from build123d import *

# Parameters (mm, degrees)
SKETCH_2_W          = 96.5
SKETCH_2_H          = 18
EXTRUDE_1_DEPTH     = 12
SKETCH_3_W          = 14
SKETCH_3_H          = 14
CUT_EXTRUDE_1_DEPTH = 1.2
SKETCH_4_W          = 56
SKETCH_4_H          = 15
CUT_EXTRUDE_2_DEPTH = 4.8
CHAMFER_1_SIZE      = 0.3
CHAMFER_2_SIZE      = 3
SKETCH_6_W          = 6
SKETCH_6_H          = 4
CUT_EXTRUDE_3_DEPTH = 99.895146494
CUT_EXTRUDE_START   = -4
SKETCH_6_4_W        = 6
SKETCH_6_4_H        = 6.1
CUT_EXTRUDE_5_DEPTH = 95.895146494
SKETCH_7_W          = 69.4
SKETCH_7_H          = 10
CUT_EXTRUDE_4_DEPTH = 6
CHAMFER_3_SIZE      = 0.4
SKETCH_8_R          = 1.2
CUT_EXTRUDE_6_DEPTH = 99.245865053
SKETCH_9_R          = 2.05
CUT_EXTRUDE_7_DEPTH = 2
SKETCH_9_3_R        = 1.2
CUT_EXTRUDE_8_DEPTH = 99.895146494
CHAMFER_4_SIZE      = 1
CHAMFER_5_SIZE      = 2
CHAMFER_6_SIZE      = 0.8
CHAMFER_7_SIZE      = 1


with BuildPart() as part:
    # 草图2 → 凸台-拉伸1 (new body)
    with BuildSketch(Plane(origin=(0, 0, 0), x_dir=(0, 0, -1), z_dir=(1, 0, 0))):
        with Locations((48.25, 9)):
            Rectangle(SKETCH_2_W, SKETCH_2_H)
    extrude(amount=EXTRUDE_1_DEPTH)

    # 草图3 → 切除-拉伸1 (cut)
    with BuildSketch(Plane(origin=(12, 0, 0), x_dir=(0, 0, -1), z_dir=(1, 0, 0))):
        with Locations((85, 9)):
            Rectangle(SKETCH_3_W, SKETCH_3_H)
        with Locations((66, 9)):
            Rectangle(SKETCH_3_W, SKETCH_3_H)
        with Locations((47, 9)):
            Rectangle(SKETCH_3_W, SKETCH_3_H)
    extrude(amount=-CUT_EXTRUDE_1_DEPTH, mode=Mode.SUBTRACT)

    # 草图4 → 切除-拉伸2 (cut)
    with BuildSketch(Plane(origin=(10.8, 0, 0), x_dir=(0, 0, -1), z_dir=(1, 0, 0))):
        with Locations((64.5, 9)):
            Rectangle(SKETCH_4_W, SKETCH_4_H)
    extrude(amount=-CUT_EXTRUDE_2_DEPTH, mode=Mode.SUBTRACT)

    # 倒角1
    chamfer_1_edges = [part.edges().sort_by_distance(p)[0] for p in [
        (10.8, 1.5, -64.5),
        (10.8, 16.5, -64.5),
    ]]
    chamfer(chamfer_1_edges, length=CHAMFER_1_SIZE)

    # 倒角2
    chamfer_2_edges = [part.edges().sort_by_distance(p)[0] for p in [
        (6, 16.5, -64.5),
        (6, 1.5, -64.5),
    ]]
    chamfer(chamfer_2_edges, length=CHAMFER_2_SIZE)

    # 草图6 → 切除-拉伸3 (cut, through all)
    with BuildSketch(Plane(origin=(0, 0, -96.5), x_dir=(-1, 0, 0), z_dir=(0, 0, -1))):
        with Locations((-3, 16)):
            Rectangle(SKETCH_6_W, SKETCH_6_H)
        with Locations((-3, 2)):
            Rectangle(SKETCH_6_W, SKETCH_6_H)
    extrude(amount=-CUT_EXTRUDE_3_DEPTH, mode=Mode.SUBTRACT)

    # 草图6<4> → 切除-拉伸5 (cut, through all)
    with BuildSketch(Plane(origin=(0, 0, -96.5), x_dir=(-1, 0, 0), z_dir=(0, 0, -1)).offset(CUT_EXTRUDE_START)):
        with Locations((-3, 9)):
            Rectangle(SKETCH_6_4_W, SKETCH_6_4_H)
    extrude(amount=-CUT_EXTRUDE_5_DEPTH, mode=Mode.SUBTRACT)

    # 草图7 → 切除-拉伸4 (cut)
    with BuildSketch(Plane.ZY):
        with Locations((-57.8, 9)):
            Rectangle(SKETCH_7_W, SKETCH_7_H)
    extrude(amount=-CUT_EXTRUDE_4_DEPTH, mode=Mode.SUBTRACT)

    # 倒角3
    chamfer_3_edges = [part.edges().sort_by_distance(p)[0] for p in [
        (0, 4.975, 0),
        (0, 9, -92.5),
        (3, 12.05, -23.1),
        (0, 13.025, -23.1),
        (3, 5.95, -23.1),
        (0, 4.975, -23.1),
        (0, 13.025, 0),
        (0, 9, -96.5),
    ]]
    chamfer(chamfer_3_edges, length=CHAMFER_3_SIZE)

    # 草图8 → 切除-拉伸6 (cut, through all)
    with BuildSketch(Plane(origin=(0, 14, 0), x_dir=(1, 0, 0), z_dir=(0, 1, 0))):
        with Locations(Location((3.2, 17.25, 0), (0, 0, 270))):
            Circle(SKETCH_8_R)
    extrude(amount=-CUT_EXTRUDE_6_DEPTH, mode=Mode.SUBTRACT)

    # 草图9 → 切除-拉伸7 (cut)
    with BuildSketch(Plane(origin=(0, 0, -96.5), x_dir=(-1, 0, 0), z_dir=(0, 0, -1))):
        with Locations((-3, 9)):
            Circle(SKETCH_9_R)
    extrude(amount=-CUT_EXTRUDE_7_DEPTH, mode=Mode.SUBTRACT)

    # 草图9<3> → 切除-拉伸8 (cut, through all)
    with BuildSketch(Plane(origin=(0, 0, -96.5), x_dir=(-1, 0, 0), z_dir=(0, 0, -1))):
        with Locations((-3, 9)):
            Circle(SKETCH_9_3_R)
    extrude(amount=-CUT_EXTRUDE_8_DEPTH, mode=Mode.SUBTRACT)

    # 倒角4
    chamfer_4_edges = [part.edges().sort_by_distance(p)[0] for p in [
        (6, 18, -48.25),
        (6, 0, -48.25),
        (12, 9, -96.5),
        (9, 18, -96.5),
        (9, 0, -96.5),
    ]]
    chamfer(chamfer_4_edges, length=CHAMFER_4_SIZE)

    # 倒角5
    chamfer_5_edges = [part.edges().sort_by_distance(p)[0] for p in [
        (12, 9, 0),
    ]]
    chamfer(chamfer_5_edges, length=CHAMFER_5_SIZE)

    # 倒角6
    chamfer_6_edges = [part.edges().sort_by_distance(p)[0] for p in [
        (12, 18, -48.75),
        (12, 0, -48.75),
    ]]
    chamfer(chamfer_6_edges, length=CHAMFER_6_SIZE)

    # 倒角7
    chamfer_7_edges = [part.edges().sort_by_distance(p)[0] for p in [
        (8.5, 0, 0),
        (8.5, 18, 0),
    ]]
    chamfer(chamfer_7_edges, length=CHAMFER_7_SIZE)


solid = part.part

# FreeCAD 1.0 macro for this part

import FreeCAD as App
import Part
import Sketcher

V = App.Vector


def edges_at(feature, points):
    """Names of the edges that pass closest to the given points."""
    edges = feature.Shape.Edges
    near = lambda p: min(range(len(edges)), key=lambda i: edges[i].distToShape(Part.Vertex(*p))[0])
    return sorted({f"Edge{near(p) + 1}" for p in points})


def add_polygon(sketch, points):
    """Adds a closed chain of lines whose ends are joined by coincident constraints."""
    first, n = sketch.GeometryCount, len(points)
    for a, b in zip(points, points[1:] + points[:1]):
        sketch.addGeometry(Part.LineSegment(App.Vector(*a, 0), App.Vector(*b, 0)), False)
    for i in range(n):
        sketch.addConstraint(Sketcher.Constraint("Coincident", first + i, 2, first + (i + 1) % n, 1))

doc = App.newDocument("Part")
body = doc.addObject("PartDesign::Body", "Body")

sketch1 = body.newObject("Sketcher::SketchObject", "Sketch")
sketch1.AttachmentSupport = (doc.getObject("YZ_Plane"), [""])
sketch1.MapMode = "FlatFace"
add_polygon(sketch1, [(18, 0), (0, 0), (0, -96.5), (18, -96.5)])
sketch1.addConstraint(Sketcher.Constraint("Horizontal", 0))
sketch1.addConstraint(Sketcher.Constraint("Vertical", 1))
sketch1.addConstraint(Sketcher.Constraint("Horizontal", 2))
sketch1.addConstraint(Sketcher.Constraint("Vertical", 3))
sketch1.addConstraint(Sketcher.Constraint("Coincident", 0, 2, -1, 1))
sketch1.addConstraint(Sketcher.Constraint("DistanceX", 0, 2, 0, 1, 18.0))
sketch1.addConstraint(Sketcher.Constraint("DistanceY", 1, 2, 1, 1, 96.5))
pad1 = body.newObject("PartDesign::Pad", "Pad")
pad1.Profile = sketch1
pad1.Length = 12

sketch2 = body.newObject("Sketcher::SketchObject", "Sketch001")
sketch2.AttachmentSupport = (doc.getObject("YZ_Plane"), [""])
sketch2.MapMode = "FlatFace"
sketch2.AttachmentOffset = App.Placement(V(0, 0, 12), App.Rotation())
add_polygon(sketch2, [(16, -78), (2, -78), (2, -92), (16, -92)])
add_polygon(sketch2, [(16, -59), (2, -59), (2, -73), (16, -73)])
add_polygon(sketch2, [(16, -40), (2, -40), (2, -54), (16, -54)])
sketch2.addConstraint(Sketcher.Constraint("Horizontal", 0))
sketch2.addConstraint(Sketcher.Constraint("Vertical", 1))
sketch2.addConstraint(Sketcher.Constraint("Horizontal", 2))
sketch2.addConstraint(Sketcher.Constraint("Vertical", 3))
sketch2.addConstraint(Sketcher.Constraint("Horizontal", 4))
sketch2.addConstraint(Sketcher.Constraint("Vertical", 5))
sketch2.addConstraint(Sketcher.Constraint("Horizontal", 6))
sketch2.addConstraint(Sketcher.Constraint("Vertical", 7))
sketch2.addConstraint(Sketcher.Constraint("Horizontal", 8))
sketch2.addConstraint(Sketcher.Constraint("Vertical", 9))
sketch2.addConstraint(Sketcher.Constraint("Horizontal", 10))
sketch2.addConstraint(Sketcher.Constraint("Vertical", 11))
sketch2.addConstraint(Sketcher.Constraint("Vertical", 1, 2, 4, 2))
sketch2.addConstraint(Sketcher.Constraint("Vertical", 3, 2, 6, 2))
sketch2.addConstraint(Sketcher.Constraint("Vertical", 5, 2, 8, 2))
sketch2.addConstraint(Sketcher.Constraint("Vertical", 7, 2, 10, 2))
sketch2.addConstraint(Sketcher.Constraint("Equal", 10, 1))
sketch2.addConstraint(Sketcher.Constraint("Equal", 3, 5))
sketch2.addConstraint(Sketcher.Constraint("Equal", 7, 9))
sketch2.addConstraint(Sketcher.Constraint("DistanceX", 0, 2, 0, 1, 14.0))
sketch2.addConstraint(Sketcher.Constraint("DistanceX", -1, 1, 0, 2, 2.0))
sketch2.addConstraint(Sketcher.Constraint("DistanceY", 0, 2, -1, 1, 78.0))
sketch2.addConstraint(Sketcher.Constraint("DistanceY", 4, 2, -1, 1, 59.0))
sketch2.addConstraint(Sketcher.Constraint("DistanceY", 8, 2, -1, 1, 40.0))
pocket1 = body.newObject("PartDesign::Pocket", "Pocket")
pocket1.Profile = sketch2
pocket1.Length = 1.2

sketch3 = body.newObject("Sketcher::SketchObject", "Sketch002")
sketch3.AttachmentSupport = (doc.getObject("YZ_Plane"), [""])
sketch3.MapMode = "FlatFace"
sketch3.AttachmentOffset = App.Placement(V(0, 0, 10.8), App.Rotation())
add_polygon(sketch3, [(16.5, -36.5), (1.5, -36.5), (1.5, -92.5), (16.5, -92.5)])
sketch3.addConstraint(Sketcher.Constraint("Horizontal", 0))
sketch3.addConstraint(Sketcher.Constraint("Vertical", 1))
sketch3.addConstraint(Sketcher.Constraint("Horizontal", 2))
sketch3.addConstraint(Sketcher.Constraint("Vertical", 3))
sketch3.addConstraint(Sketcher.Constraint("DistanceX", 0, 2, 0, 1, 15.0))
sketch3.addConstraint(Sketcher.Constraint("DistanceY", 1, 2, 1, 1, 56.0))
sketch3.addConstraint(Sketcher.Constraint("DistanceX", -1, 1, 0, 2, 1.5))
sketch3.addConstraint(Sketcher.Constraint("DistanceY", 0, 2, -1, 1, 36.5))
pocket2 = body.newObject("PartDesign::Pocket", "Pocket001")
pocket2.Profile = sketch3
pocket2.Length = 4.8
doc.recompute()

chamfer = body.newObject("PartDesign::Chamfer", "Chamfer")
chamfer.Base = (pocket2, edges_at(pocket2, [(10.8, 1.5, -64.5), (10.8, 16.5, -64.5)]))
chamfer.Size = 0.3
doc.recompute()

chamfer2 = body.newObject("PartDesign::Chamfer", "Chamfer001")
chamfer2.Base = (chamfer, edges_at(chamfer, [(6, 16.5, -64.5), (6, 1.5, -64.5)]))
chamfer2.Size = 3

sketch4 = body.newObject("Sketcher::SketchObject", "Sketch003")
sketch4.AttachmentSupport = (doc.getObject("XY_Plane"), [""])
sketch4.MapMode = "FlatFace"
sketch4.AttachmentOffset = App.Placement(V(0, 0, -96.5), App.Rotation())
add_polygon(sketch4, [(6, 18), (6, 14), (0, 14), (0, 18)])
add_polygon(sketch4, [(6, 4), (6, 0), (0, 0), (0, 4)])
sketch4.addConstraint(Sketcher.Constraint("Vertical", 0))
sketch4.addConstraint(Sketcher.Constraint("Horizontal", 1))
sketch4.addConstraint(Sketcher.Constraint("Vertical", 2))
sketch4.addConstraint(Sketcher.Constraint("Horizontal", 3))
sketch4.addConstraint(Sketcher.Constraint("Vertical", 4))
sketch4.addConstraint(Sketcher.Constraint("Horizontal", 5))
sketch4.addConstraint(Sketcher.Constraint("Vertical", 6))
sketch4.addConstraint(Sketcher.Constraint("Horizontal", 7))
sketch4.addConstraint(Sketcher.Constraint("Coincident", 5, 2, -1, 1))
sketch4.addConstraint(Sketcher.Constraint("PointOnObject", 1, 2, -2))
sketch4.addConstraint(Sketcher.Constraint("Vertical", 3, 2, 4, 2))
sketch4.addConstraint(Sketcher.Constraint("Equal", 2, 4))
sketch4.addConstraint(Sketcher.Constraint("DistanceX", 1, 2, 1, 1, 6.0))
sketch4.addConstraint(Sketcher.Constraint("DistanceY", 0, 2, 0, 1, 4.0))
sketch4.addConstraint(Sketcher.Constraint("DistanceY", -1, 1, 0, 2, 14.0))
pocket3 = body.newObject("PartDesign::Pocket", "Pocket002")
pocket3.Profile = sketch4
pocket3.Type = "ThroughAll"
pocket3.Reversed = True

sketch5 = body.newObject("Sketcher::SketchObject", "Sketch004")
sketch5.AttachmentSupport = (doc.getObject("XY_Plane"), [""])
sketch5.MapMode = "FlatFace"
sketch5.AttachmentOffset = App.Placement(V(0, 0, -92.5), App.Rotation())
add_polygon(sketch5, [(6, 12.05), (6, 5.95), (0, 5.95), (0, 12.05)])
sketch5.addConstraint(Sketcher.Constraint("Vertical", 0))
sketch5.addConstraint(Sketcher.Constraint("Horizontal", 1))
sketch5.addConstraint(Sketcher.Constraint("Vertical", 2))
sketch5.addConstraint(Sketcher.Constraint("Horizontal", 3))
sketch5.addConstraint(Sketcher.Constraint("PointOnObject", 1, 2, -2))
sketch5.addConstraint(Sketcher.Constraint("DistanceX", 1, 2, 1, 1, 6.0))
sketch5.addConstraint(Sketcher.Constraint("DistanceY", 0, 2, 0, 1, 6.1))
sketch5.addConstraint(Sketcher.Constraint("DistanceY", -1, 1, 0, 2, 5.95))
pocket4 = body.newObject("PartDesign::Pocket", "Pocket003")
pocket4.Profile = sketch5
pocket4.Type = "ThroughAll"
pocket4.Reversed = True

sketch6 = body.newObject("Sketcher::SketchObject", "Sketch005")
sketch6.AttachmentSupport = (doc.getObject("YZ_Plane"), [""])
sketch6.MapMode = "FlatFace"
add_polygon(sketch6, [(14, -92.5), (4, -92.5), (4, -23.1), (14, -23.1)])
sketch6.addConstraint(Sketcher.Constraint("Horizontal", 0))
sketch6.addConstraint(Sketcher.Constraint("Vertical", 1))
sketch6.addConstraint(Sketcher.Constraint("Horizontal", 2))
sketch6.addConstraint(Sketcher.Constraint("Vertical", 3))
sketch6.addConstraint(Sketcher.Constraint("DistanceX", 0, 2, 0, 1, 10.0))
sketch6.addConstraint(Sketcher.Constraint("DistanceY", 1, 1, 1, 2, 69.4))
sketch6.addConstraint(Sketcher.Constraint("DistanceX", -1, 1, 0, 2, 4.0))
sketch6.addConstraint(Sketcher.Constraint("DistanceY", 0, 2, -1, 1, 92.5))
pocket5 = body.newObject("PartDesign::Pocket", "Pocket004")
pocket5.Profile = sketch6
pocket5.Length = 6
pocket5.Reversed = True
doc.recompute()

chamfer3 = body.newObject("PartDesign::Chamfer", "Chamfer002")
chamfer3.Base = (pocket5, edges_at(pocket5, [
    (0, 4.975, 0),
    (0, 9, -92.5),
    (3, 12.05, -23.1),
    (0, 13.025, -23.1),
    (3, 5.95, -23.1),
    (0, 4.975, -23.1),
    (0, 13.025, 0),
    (0, 9, -96.5),
]))
chamfer3.Size = 0.4

sketch7 = body.newObject("Sketcher::SketchObject", "Sketch006")
sketch7.AttachmentSupport = (doc.getObject("XZ_Plane"), [""])
sketch7.MapMode = "FlatFace"
sketch7.AttachmentOffset = App.Placement(V(0, 0, -14), App.Rotation())
sketch7.addGeometry(Part.Circle(V(3.2, -17.25, 0), V(0, 0, 1), 1.2), False)
sketch7.addConstraint(Sketcher.Constraint("Diameter", 0, 2.4))
sketch7.addConstraint(Sketcher.Constraint("DistanceX", -1, 1, 0, 3, 3.2))
sketch7.addConstraint(Sketcher.Constraint("DistanceY", 0, 3, -1, 1, 17.25))
pocket6 = body.newObject("PartDesign::Pocket", "Pocket005")
pocket6.Profile = sketch7
pocket6.Type = "ThroughAll"
pocket6.Reversed = True

sketch8 = body.newObject("Sketcher::SketchObject", "Sketch007")
sketch8.AttachmentSupport = (doc.getObject("XY_Plane"), [""])
sketch8.MapMode = "FlatFace"
sketch8.AttachmentOffset = App.Placement(V(0, 0, -96.5), App.Rotation())
sketch8.addGeometry(Part.Circle(V(3, 9, 0), V(0, 0, 1), 2.05), False)
sketch8.addConstraint(Sketcher.Constraint("Diameter", 0, 4.1))
sketch8.addConstraint(Sketcher.Constraint("DistanceX", -1, 1, 0, 3, 3.0))
sketch8.addConstraint(Sketcher.Constraint("DistanceY", -1, 1, 0, 3, 9.0))
pocket7 = body.newObject("PartDesign::Pocket", "Pocket006")
pocket7.Profile = sketch8
pocket7.Length = 2
pocket7.Reversed = True

sketch9 = body.newObject("Sketcher::SketchObject", "Sketch008")
sketch9.AttachmentSupport = (doc.getObject("XY_Plane"), [""])
sketch9.MapMode = "FlatFace"
sketch9.AttachmentOffset = App.Placement(V(0, 0, -96.5), App.Rotation())
sketch9.addGeometry(Part.Circle(V(3, 9, 0), V(0, 0, 1), 1.2), False)
sketch9.addConstraint(Sketcher.Constraint("Diameter", 0, 2.4))
sketch9.addConstraint(Sketcher.Constraint("DistanceX", -1, 1, 0, 3, 3.0))
sketch9.addConstraint(Sketcher.Constraint("DistanceY", -1, 1, 0, 3, 9.0))
pocket8 = body.newObject("PartDesign::Pocket", "Pocket007")
pocket8.Profile = sketch9
pocket8.Type = "ThroughAll"
pocket8.Reversed = True
doc.recompute()

chamfer4 = body.newObject("PartDesign::Chamfer", "Chamfer003")
chamfer4.Base = (pocket8, edges_at(pocket8, [
    (6, 18, -48.25),
    (6, 0, -48.25),
    (12, 9, -96.5),
    (9, 18, -96.5),
    (9, 0, -96.5),
]))
chamfer4.Size = 1
doc.recompute()

chamfer5 = body.newObject("PartDesign::Chamfer", "Chamfer004")
chamfer5.Base = (chamfer4, edges_at(chamfer4, [(12, 9, 0)]))
chamfer5.Size = 2
doc.recompute()

chamfer6 = body.newObject("PartDesign::Chamfer", "Chamfer005")
chamfer6.Base = (chamfer5, edges_at(chamfer5, [(12, 18, -48.75), (12, 0, -48.75)]))
chamfer6.Size = 0.8
doc.recompute()

chamfer7 = body.newObject("PartDesign::Chamfer", "Chamfer006")
chamfer7.Base = (chamfer6, edges_at(chamfer6, [(8.5, 0, 0), (8.5, 18, 0)]))
chamfer7.Size = 1

doc.recompute()
